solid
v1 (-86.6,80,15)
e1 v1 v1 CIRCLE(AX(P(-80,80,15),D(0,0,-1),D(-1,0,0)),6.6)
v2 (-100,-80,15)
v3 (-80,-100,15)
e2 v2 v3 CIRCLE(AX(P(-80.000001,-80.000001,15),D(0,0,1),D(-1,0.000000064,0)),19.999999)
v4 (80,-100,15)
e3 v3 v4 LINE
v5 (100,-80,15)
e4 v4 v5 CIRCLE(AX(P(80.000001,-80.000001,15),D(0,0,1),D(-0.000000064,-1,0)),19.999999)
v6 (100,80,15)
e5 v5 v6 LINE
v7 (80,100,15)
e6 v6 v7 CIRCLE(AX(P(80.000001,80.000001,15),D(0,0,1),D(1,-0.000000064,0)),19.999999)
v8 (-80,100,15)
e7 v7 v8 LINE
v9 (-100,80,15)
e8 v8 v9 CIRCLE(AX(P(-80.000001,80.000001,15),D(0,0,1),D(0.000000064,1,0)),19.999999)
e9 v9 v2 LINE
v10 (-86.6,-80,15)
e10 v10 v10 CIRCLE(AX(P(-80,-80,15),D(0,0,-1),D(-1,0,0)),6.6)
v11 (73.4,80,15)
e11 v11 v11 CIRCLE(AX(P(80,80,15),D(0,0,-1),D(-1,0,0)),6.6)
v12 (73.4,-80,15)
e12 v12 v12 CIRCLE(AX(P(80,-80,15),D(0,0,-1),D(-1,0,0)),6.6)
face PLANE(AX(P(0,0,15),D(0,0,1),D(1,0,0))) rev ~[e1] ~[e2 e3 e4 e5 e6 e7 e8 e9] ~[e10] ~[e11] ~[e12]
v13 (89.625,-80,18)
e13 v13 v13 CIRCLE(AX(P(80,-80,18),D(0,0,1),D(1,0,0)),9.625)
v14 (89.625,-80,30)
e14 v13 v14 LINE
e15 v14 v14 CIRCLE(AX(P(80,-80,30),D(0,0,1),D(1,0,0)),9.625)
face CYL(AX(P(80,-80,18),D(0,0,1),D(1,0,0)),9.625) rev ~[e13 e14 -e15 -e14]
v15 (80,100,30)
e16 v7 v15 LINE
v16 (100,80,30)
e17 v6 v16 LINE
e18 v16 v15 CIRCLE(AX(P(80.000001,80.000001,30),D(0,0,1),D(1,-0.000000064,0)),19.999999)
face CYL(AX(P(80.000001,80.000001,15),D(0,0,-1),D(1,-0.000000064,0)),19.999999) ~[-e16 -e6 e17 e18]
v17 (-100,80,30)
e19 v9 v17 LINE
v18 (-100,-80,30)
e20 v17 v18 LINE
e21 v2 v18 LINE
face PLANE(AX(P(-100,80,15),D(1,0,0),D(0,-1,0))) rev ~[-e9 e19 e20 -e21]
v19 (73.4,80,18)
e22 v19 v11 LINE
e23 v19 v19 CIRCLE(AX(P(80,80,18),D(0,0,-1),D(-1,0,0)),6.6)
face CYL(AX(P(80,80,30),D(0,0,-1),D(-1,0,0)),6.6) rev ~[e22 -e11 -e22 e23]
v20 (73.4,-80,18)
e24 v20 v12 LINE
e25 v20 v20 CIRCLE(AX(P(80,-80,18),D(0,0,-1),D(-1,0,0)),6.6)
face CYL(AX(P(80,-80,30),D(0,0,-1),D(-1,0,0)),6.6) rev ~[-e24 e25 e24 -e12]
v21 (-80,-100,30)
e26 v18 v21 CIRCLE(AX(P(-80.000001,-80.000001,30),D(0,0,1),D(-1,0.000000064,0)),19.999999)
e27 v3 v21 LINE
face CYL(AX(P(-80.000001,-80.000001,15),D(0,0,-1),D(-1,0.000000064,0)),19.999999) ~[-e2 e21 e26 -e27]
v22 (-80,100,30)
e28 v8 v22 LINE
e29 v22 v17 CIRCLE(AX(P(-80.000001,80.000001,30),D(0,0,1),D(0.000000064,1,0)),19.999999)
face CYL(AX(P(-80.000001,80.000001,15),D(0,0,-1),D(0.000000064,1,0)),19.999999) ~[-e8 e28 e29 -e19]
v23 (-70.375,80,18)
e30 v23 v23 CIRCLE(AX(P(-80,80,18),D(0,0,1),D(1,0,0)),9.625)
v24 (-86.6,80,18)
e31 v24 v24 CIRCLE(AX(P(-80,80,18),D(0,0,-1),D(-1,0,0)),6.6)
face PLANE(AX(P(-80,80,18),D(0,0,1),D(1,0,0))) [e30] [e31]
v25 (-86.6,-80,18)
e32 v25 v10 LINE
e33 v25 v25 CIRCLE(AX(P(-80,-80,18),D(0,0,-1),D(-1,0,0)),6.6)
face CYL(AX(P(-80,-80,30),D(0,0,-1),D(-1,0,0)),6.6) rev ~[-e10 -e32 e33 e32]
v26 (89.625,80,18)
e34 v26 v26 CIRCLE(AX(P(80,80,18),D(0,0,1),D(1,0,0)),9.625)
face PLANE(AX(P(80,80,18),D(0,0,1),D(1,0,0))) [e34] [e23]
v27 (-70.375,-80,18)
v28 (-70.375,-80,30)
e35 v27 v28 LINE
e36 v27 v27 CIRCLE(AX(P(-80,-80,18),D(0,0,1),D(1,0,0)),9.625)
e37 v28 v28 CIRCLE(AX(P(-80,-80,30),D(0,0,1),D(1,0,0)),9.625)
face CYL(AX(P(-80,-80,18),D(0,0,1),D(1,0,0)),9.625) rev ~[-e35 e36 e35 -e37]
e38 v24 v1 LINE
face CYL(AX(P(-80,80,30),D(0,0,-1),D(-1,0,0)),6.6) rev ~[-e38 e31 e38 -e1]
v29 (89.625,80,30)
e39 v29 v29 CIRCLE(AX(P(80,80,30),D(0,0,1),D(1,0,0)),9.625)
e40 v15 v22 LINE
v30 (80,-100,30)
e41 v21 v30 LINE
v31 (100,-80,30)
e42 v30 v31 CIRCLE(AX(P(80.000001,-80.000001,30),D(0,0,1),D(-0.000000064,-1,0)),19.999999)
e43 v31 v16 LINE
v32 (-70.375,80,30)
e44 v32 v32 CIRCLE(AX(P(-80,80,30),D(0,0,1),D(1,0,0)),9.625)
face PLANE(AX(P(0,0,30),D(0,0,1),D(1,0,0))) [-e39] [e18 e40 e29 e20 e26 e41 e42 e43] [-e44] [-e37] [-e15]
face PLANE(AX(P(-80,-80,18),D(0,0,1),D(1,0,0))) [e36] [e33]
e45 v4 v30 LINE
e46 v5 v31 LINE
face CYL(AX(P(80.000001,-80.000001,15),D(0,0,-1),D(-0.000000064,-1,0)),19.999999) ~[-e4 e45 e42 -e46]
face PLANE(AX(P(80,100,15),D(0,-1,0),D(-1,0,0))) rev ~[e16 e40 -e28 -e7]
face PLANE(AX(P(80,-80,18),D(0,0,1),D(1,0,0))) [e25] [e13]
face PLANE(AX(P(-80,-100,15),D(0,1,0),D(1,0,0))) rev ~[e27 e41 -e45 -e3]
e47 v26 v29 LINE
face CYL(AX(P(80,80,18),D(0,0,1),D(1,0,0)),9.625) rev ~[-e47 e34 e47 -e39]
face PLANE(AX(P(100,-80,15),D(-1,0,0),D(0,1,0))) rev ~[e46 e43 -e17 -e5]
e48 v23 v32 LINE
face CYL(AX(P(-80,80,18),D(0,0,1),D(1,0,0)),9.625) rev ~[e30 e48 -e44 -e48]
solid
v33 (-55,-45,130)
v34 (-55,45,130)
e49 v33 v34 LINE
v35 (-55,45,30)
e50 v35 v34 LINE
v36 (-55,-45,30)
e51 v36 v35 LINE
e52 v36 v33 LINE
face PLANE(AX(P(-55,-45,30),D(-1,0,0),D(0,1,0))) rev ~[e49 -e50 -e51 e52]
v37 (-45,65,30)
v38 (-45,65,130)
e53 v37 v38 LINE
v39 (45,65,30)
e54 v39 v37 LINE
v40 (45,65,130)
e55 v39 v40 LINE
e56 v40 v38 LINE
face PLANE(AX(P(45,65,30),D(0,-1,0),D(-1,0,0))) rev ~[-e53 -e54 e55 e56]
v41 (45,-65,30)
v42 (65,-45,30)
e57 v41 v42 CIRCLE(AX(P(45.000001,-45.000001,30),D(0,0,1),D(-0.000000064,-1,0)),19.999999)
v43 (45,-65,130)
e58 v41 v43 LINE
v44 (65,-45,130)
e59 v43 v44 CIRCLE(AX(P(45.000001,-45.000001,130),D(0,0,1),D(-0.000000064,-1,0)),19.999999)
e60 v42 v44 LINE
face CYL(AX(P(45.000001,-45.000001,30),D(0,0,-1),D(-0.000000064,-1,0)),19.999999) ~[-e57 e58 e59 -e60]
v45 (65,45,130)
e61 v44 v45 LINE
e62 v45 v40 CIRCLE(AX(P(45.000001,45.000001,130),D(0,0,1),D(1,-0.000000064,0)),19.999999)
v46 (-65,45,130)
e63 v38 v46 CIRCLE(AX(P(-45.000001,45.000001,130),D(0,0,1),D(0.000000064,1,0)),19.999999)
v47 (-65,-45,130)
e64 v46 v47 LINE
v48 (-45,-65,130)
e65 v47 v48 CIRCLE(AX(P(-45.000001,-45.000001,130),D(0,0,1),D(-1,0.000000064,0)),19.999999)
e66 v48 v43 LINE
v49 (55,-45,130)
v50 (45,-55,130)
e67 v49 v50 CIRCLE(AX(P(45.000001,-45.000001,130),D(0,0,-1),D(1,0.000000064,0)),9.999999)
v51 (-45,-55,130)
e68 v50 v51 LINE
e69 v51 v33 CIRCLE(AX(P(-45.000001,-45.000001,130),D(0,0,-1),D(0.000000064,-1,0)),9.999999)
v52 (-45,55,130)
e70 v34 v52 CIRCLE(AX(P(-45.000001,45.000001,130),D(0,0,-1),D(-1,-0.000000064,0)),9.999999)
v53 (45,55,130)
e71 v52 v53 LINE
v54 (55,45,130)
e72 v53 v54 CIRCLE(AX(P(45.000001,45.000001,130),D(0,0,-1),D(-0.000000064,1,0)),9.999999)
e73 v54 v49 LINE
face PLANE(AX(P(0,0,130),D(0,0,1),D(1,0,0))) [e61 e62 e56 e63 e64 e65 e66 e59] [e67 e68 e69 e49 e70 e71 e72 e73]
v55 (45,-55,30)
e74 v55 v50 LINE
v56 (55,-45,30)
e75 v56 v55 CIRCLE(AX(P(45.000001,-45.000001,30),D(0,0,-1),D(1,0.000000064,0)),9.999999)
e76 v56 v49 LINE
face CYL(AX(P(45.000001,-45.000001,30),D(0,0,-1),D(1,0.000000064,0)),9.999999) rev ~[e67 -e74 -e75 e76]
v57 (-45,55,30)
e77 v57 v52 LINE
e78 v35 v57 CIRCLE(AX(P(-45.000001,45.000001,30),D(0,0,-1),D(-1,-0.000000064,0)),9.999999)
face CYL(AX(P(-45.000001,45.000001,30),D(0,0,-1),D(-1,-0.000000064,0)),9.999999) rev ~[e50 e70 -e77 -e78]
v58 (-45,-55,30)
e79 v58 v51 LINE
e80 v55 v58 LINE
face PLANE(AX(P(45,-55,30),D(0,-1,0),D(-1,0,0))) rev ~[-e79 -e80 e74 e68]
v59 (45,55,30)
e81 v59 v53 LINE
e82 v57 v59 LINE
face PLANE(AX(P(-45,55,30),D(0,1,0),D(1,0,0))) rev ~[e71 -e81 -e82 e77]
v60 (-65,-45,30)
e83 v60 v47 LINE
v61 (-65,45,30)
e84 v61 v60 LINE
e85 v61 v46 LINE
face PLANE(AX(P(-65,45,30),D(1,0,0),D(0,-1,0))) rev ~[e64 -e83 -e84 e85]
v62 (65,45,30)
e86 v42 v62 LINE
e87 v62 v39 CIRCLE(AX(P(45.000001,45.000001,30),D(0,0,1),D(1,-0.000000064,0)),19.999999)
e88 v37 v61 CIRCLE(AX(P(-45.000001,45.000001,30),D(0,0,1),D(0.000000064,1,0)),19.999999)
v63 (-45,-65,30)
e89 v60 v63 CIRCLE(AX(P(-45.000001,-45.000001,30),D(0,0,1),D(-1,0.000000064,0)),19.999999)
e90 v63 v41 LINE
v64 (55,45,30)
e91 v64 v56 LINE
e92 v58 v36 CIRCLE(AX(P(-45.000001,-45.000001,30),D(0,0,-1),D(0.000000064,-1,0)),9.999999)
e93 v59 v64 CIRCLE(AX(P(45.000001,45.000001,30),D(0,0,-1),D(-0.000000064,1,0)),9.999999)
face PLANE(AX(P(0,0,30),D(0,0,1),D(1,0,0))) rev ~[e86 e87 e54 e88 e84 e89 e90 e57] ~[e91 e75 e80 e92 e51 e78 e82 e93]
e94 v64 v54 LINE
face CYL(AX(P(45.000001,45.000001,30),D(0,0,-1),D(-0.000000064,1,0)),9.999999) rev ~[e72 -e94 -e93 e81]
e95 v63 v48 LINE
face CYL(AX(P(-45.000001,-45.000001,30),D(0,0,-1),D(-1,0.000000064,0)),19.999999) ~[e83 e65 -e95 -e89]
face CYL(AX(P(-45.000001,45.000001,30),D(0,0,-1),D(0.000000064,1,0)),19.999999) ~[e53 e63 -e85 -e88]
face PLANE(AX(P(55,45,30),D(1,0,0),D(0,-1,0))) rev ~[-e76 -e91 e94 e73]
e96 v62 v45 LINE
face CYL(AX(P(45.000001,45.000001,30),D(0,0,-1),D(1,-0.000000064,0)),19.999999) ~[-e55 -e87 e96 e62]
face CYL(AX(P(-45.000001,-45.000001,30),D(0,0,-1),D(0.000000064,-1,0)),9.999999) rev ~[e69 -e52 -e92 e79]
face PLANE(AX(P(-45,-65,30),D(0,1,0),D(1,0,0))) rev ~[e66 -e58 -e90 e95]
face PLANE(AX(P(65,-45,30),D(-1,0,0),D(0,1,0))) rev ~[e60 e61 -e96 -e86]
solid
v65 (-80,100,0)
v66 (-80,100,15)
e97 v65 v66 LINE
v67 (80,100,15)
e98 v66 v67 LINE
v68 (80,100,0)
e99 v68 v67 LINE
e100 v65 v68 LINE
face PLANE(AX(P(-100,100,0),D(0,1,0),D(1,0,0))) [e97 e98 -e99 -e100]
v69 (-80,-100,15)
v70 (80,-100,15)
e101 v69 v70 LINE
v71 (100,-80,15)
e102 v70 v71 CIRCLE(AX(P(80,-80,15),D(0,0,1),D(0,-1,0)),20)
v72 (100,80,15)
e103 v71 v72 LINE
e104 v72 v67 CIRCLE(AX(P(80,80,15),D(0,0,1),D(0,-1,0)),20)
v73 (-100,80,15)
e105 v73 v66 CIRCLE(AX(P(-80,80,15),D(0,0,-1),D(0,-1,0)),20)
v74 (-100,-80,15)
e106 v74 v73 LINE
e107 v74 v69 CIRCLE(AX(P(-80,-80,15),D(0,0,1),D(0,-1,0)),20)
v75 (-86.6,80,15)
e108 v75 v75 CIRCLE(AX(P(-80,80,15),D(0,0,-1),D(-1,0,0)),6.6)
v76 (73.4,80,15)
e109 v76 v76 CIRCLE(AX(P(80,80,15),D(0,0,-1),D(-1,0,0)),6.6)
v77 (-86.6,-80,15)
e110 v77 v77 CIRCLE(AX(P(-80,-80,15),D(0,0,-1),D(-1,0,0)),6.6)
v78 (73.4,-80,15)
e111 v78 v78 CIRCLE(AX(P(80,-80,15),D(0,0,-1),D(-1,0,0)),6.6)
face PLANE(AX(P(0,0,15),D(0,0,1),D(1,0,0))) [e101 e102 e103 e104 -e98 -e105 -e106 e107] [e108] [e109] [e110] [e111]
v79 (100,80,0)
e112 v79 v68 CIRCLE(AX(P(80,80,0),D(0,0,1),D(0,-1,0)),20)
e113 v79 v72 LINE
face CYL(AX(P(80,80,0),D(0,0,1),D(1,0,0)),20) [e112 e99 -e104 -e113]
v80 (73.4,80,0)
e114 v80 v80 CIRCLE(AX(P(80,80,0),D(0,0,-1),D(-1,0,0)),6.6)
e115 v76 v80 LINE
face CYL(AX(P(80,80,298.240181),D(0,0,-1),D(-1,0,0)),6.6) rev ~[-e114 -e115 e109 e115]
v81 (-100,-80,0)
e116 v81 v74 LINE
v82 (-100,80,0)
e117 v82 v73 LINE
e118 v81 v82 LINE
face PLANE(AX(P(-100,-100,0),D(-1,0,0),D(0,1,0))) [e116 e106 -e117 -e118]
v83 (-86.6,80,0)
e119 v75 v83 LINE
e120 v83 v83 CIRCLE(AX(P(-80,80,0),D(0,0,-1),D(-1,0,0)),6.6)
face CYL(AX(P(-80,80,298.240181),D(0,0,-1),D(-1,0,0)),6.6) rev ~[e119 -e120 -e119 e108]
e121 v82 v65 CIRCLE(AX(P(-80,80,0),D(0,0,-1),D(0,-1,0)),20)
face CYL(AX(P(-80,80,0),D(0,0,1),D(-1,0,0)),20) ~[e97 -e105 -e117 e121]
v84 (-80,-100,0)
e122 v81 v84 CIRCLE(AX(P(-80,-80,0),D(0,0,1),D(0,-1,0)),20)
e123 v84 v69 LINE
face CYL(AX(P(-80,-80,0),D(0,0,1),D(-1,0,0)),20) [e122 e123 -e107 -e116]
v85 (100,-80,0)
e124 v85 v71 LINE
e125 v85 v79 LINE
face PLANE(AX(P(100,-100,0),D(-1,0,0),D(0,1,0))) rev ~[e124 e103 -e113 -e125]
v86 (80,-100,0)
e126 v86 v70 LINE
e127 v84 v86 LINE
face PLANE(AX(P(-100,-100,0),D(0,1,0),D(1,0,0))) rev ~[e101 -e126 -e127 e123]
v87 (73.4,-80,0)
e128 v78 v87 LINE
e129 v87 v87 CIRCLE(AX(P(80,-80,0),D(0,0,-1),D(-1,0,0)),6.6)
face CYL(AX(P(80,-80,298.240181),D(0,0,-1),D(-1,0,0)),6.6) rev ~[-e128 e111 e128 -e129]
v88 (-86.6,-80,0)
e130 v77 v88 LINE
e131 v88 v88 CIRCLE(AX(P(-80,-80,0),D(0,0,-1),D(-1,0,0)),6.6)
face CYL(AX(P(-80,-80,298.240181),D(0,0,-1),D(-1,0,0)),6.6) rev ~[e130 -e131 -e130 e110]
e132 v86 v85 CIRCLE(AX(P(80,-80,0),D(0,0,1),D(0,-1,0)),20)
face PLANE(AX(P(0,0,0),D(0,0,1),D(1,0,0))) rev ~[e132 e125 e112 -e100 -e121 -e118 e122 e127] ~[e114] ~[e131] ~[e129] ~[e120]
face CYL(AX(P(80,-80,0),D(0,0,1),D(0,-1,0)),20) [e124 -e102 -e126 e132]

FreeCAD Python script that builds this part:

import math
import FreeCAD as App
import Part
import Sketcher


def edges_at(feature, points):
    """Names of the edges that pass closest to the given points."""
    edges = feature.Shape.Edges
    near = lambda p: min(range(len(edges)), key=lambda i: edges[i].distToShape(Part.Vertex(*p))[0])
    return sorted({f"Edge{near(p) + 1}" for p in points})


def add_polygon(sketch, points):
    """Adds a closed chain of lines whose ends are joined by coincident constraints."""
    first, n = sketch.GeometryCount, len(points)
    for a, b in zip(points, points[1:] + points[:1]):
        sketch.addGeometry(Part.LineSegment(App.Vector(*a, 0), App.Vector(*b, 0)), False)
    for i in range(n):
        sketch.addConstraint(Sketcher.Constraint("Coincident", first + i, 2, first + (i + 1) % n, 1))

doc = App.newDocument("Part")
body = doc.addObject("PartDesign::Body", "Body")

sketch1 = body.newObject("Sketcher::SketchObject", "Sketch")
sketch1.AttachmentSupport = (doc.getObject("XY_Plane"), [""])
sketch1.MapMode = "FlatFace"
add_polygon(sketch1, [(-100, 100), (-100, -100), (100, -100), (100, 100)])
sketch1.addConstraint([
    Sketcher.Constraint("Vertical", 0),
    Sketcher.Constraint("Horizontal", 1),
    Sketcher.Constraint("Vertical", 2),
    Sketcher.Constraint("Horizontal", 3),
    Sketcher.Constraint("Symmetric", 0, 2, 2, 2, -1, 1),
    Sketcher.Constraint("Equal", 3, 0),
    Sketcher.Constraint("DistanceX", 1, 1, 1, 2, 200.0),
])
pad1 = body.newObject("PartDesign::Pad", "Pad")
pad1.Profile = sketch1
pad1.Length = 15
doc.recompute()

fillet = body.newObject("PartDesign::Fillet", "Fillet")
fillet.Base = (pad1, edges_at(pad1, [
    (100, -100, 7.5),
    (100, 100, 7.5),
    (-100, -100, 7.5),
    (-100, 100, 7.5),
]))
fillet.Radius = 20

sketch2 = body.newObject("Sketcher::SketchObject", "Sketch001")
sketch2.AttachmentSupport = (doc.getObject("XY_Plane"), [""])
sketch2.MapMode = "FlatFace"
sketch2.AttachmentOffset = App.Placement(App.Vector(0, 0, 15), App.Rotation())
sketch2.addGeometry([
    Part.Circle(App.Vector(80, 80, 0), App.Vector(0, 0, 1), 7),
    Part.Circle(App.Vector(-80, 80, 0), App.Vector(0, 0, 1), 7),
    Part.Circle(App.Vector(-80, -80, 0), App.Vector(0, 0, 1), 7),
    Part.Circle(App.Vector(80, -80, 0), App.Vector(0, 0, 1), 7),
], False)
sketch2.addConstraint([
    Sketcher.Constraint("Equal", 0, 1),
    Sketcher.Constraint("Equal", 1, 2),
    Sketcher.Constraint("Equal", 2, 3),
    Sketcher.Constraint("Symmetric", 0, 3, 2, 3, -1, 1),
    Sketcher.Constraint("Symmetric", 1, 3, 3, 3, -1, 1),
    Sketcher.Constraint("Symmetric", 0, 3, 1, 3, -2),
    Sketcher.Constraint("Diameter", 0, 13.2),
    Sketcher.Constraint("DistanceX", -1, 1, 0, 3, 80.0),
    Sketcher.Constraint("DistanceY", -1, 1, 0, 3, 80.0),
])
doc.recompute()
hole = body.newObject("PartDesign::Hole", "Hole")
hole.Profile = sketch2
hole.ThreadType = "None"
hole.Diameter = 13.2
hole.DepthType = "ThroughAll"
body2 = doc.addObject("PartDesign::Body", "Body001")

sketch3 = body2.newObject("Sketcher::SketchObject", "Sketch002")
sketch3.AttachmentSupport = (doc.getObject("XY_Plane001"), [""])
sketch3.MapMode = "FlatFace"
sketch3.AttachmentOffset = App.Placement(App.Vector(0, 0, 15), App.Rotation())
sketch3.addGeometry([
    Part.LineSegment(App.Vector(-100, 80, 0), App.Vector(-100, -80, 0)),
    Part.ArcOfCircle(Part.Circle(App.Vector(-80, -80, 0), App.Vector(0, 0, 1), 20), math.radians(180), math.radians(270)),
    Part.LineSegment(App.Vector(-80, -100, 0), App.Vector(80, -100, 0)),
    Part.ArcOfCircle(Part.Circle(App.Vector(80, -80, 0), App.Vector(0, 0, 1), 20), math.radians(-90), math.radians(0)),
    Part.LineSegment(App.Vector(100, -80, 0), App.Vector(100, 80, 0)),
    Part.ArcOfCircle(Part.Circle(App.Vector(80, 80, 0), App.Vector(0, 0, 1), 20), math.radians(0), math.radians(90)),
    Part.LineSegment(App.Vector(80, 100, 0), App.Vector(-80, 100, 0)),
    Part.ArcOfCircle(Part.Circle(App.Vector(-80, 80, 0), App.Vector(0, 0, 1), 20), math.radians(90), math.radians(180)),
], False)
sketch3.addConstraint([
    Sketcher.Constraint("Tangent", 0, 2, 1, 1),
    Sketcher.Constraint("Tangent", 1, 2, 2, 1),
    Sketcher.Constraint("Tangent", 2, 2, 3, 1),
    Sketcher.Constraint("Tangent", 3, 2, 4, 1),
    Sketcher.Constraint("Tangent", 4, 2, 5, 1),
    Sketcher.Constraint("Tangent", 5, 2, 6, 1),
    Sketcher.Constraint("Tangent", 6, 2, 7, 1),
    Sketcher.Constraint("Tangent", 7, 2, 0, 1),
    Sketcher.Constraint("Vertical", 0),
    Sketcher.Constraint("Horizontal", 2),
    Sketcher.Constraint("Vertical", 4),
    Sketcher.Constraint("Horizontal", 6),
    Sketcher.Constraint("Equal", 1, 3),
    Sketcher.Constraint("Equal", 3, 5),
    Sketcher.Constraint("Equal", 5, 7),
    Sketcher.Constraint("Symmetric", 1, 3, 5, 3, -1, 1),
    Sketcher.Constraint("Equal", 6, 0),
    Sketcher.Constraint("Radius", 1, 19.999999),
    Sketcher.Constraint("DistanceX", 2, 1, 2, 2, 160.0),
])
pad2 = body2.newObject("PartDesign::Pad", "Pad001")
pad2.Profile = sketch3
pad2.Length = 15

sketch4 = body2.newObject("Sketcher::SketchObject", "Sketch003")
sketch4.AttachmentSupport = (doc.getObject("XY_Plane001"), [""])
sketch4.MapMode = "FlatFace"
sketch4.AttachmentOffset = App.Placement(App.Vector(0, 0, 30), App.Rotation())
sketch4.addGeometry([
    Part.Circle(App.Vector(-80, -80, 0), App.Vector(0, 0, 1), 7),
    Part.Circle(App.Vector(-80, 80, 0), App.Vector(0, 0, 1), 7),
    Part.Circle(App.Vector(80, 80, 0), App.Vector(0, 0, 1), 7),
    Part.Circle(App.Vector(80, -80, 0), App.Vector(0, 0, 1), 7),
], False)
sketch4.addConstraint([
    Sketcher.Constraint("Equal", 0, 1),
    Sketcher.Constraint("Equal", 1, 2),
    Sketcher.Constraint("Equal", 2, 3),
    Sketcher.Constraint("Symmetric", 0, 3, 2, 3, -1, 1),
    Sketcher.Constraint("Symmetric", 1, 3, 3, 3, -1, 1),
    Sketcher.Constraint("Symmetric", 1, 3, 2, 3, -2),
    Sketcher.Constraint("Diameter", 0, 13.2),
    Sketcher.Constraint("DistanceX", 0, 3, -1, 1, 80.0),
    Sketcher.Constraint("DistanceY", 0, 3, -1, 1, 80.0),
])
doc.recompute()
hole2 = body2.newObject("PartDesign::Hole", "Hole001")
hole2.Profile = sketch4
hole2.ThreadType = "None"
hole2.Diameter = 13.2
hole2.DepthType = "ThroughAll"
hole2.HoleCutType = "Counterbore"
hole2.HoleCutDiameter = 19.25
hole2.HoleCutDepth = 12
body3 = doc.addObject("PartDesign::Body", "Body002")

sketch5 = body3.newObject("Sketcher::SketchObject", "Sketch004")
sketch5.AttachmentSupport = (doc.getObject("XY_Plane002"), [""])
sketch5.MapMode = "FlatFace"
sketch5.AttachmentOffset = App.Placement(App.Vector(0, 0, 30), App.Rotation())
sketch5.addGeometry([
    Part.LineSegment(App.Vector(-45, -65, 0), App.Vector(45, -65, 0)),
    Part.ArcOfCircle(Part.Circle(App.Vector(45, -45, 0), App.Vector(0, 0, 1), 20), math.radians(-90), math.radians(0)),
    Part.LineSegment(App.Vector(65, -45, 0), App.Vector(65, 45, 0)),
    Part.ArcOfCircle(Part.Circle(App.Vector(45, 45, 0), App.Vector(0, 0, 1), 20), math.radians(0), math.radians(90)),
    Part.LineSegment(App.Vector(45, 65, 0), App.Vector(-45, 65, 0)),
    Part.ArcOfCircle(Part.Circle(App.Vector(-45, 45, 0), App.Vector(0, 0, 1), 20), math.radians(90), math.radians(180)),
    Part.LineSegment(App.Vector(-65, 45, 0), App.Vector(-65, -45, 0)),
    Part.ArcOfCircle(Part.Circle(App.Vector(-45, -45, 0), App.Vector(0, 0, 1), 20), math.radians(180), math.radians(270)),
    Part.ArcOfCircle(Part.Circle(App.Vector(-45, 45, 0), App.Vector(0, 0, 1), 10), math.radians(90), math.radians(180)),
    Part.LineSegment(App.Vector(-45, 55, 0), App.Vector(45, 55, 0)),
    Part.ArcOfCircle(Part.Circle(App.Vector(45, 45, 0), App.Vector(0, 0, 1), 10), math.radians(0), math.radians(90)),
    Part.LineSegment(App.Vector(55, 45, 0), App.Vector(55, -45, 0)),
    Part.ArcOfCircle(Part.Circle(App.Vector(45, -45, 0), App.Vector(0, 0, 1), 10), math.radians(-90), math.radians(0)),
    Part.LineSegment(App.Vector(45, -55, 0), App.Vector(-45, -55, 0)),
    Part.ArcOfCircle(Part.Circle(App.Vector(-45, -45, 0), App.Vector(0, 0, 1), 10), math.radians(180), math.radians(270)),
    Part.LineSegment(App.Vector(-55, -45, 0), App.Vector(-55, 45, 0)),
], False)
sketch5.addConstraint([
    Sketcher.Constraint("Tangent", 0, 2, 1, 1),
    Sketcher.Constraint("Tangent", 1, 2, 2, 1),
    Sketcher.Constraint("Tangent", 2, 2, 3, 1),
    Sketcher.Constraint("Tangent", 3, 2, 4, 1),
    Sketcher.Constraint("Tangent", 4, 2, 5, 1),
    Sketcher.Constraint("Tangent", 5, 2, 6, 1),
    Sketcher.Constraint("Tangent", 6, 2, 7, 1),
    Sketcher.Constraint("Tangent", 7, 2, 0, 1),
    Sketcher.Constraint("Tangent", 8, 1, 9, 1),
    Sketcher.Constraint("Tangent", 9, 2, 10, 2),
    Sketcher.Constraint("Tangent", 10, 1, 11, 1),
    Sketcher.Constraint("Tangent", 11, 2, 12, 2),
    Sketcher.Constraint("Tangent", 12, 1, 13, 1),
    Sketcher.Constraint("Tangent", 13, 2, 14, 2),
    Sketcher.Constraint("Tangent", 14, 1, 15, 1),
    Sketcher.Constraint("Tangent", 15, 2, 8, 2),
    Sketcher.Constraint("Horizontal", 0),
    Sketcher.Constraint("Vertical", 2),
    Sketcher.Constraint("Horizontal", 4),
    Sketcher.Constraint("Vertical", 6),
    Sketcher.Constraint("Horizontal", 9),
    Sketcher.Constraint("Vertical", 11),
    Sketcher.Constraint("Horizontal", 13),
    Sketcher.Constraint("Vertical", 15),
    Sketcher.Constraint("Coincident", 8, 3, 5, 3),
    Sketcher.Constraint("Coincident", 10, 3, 3, 3),
    Sketcher.Constraint("Coincident", 12, 3, 1, 3),
    Sketcher.Constraint("Equal", 1, 3),
    Sketcher.Constraint("Equal", 3, 5),
    Sketcher.Constraint("Equal", 5, 7),
    Sketcher.Constraint("Equal", 12, 14),
    Sketcher.Constraint("Symmetric", 1, 3, 5, 3, -1, 1),
    Sketcher.Constraint("Equal", 13, 2),
    Sketcher.Constraint("Radius", 1, 19.999999),
    Sketcher.Constraint("Radius", 8, 9.999999),
    Sketcher.Constraint("DistanceX", 0, 1, 0, 2, 90.0),
])
pad3 = body3.newObject("PartDesign::Pad", "Pad002")
pad3.Profile = sketch5
pad3.Length = 100

doc.recompute()
